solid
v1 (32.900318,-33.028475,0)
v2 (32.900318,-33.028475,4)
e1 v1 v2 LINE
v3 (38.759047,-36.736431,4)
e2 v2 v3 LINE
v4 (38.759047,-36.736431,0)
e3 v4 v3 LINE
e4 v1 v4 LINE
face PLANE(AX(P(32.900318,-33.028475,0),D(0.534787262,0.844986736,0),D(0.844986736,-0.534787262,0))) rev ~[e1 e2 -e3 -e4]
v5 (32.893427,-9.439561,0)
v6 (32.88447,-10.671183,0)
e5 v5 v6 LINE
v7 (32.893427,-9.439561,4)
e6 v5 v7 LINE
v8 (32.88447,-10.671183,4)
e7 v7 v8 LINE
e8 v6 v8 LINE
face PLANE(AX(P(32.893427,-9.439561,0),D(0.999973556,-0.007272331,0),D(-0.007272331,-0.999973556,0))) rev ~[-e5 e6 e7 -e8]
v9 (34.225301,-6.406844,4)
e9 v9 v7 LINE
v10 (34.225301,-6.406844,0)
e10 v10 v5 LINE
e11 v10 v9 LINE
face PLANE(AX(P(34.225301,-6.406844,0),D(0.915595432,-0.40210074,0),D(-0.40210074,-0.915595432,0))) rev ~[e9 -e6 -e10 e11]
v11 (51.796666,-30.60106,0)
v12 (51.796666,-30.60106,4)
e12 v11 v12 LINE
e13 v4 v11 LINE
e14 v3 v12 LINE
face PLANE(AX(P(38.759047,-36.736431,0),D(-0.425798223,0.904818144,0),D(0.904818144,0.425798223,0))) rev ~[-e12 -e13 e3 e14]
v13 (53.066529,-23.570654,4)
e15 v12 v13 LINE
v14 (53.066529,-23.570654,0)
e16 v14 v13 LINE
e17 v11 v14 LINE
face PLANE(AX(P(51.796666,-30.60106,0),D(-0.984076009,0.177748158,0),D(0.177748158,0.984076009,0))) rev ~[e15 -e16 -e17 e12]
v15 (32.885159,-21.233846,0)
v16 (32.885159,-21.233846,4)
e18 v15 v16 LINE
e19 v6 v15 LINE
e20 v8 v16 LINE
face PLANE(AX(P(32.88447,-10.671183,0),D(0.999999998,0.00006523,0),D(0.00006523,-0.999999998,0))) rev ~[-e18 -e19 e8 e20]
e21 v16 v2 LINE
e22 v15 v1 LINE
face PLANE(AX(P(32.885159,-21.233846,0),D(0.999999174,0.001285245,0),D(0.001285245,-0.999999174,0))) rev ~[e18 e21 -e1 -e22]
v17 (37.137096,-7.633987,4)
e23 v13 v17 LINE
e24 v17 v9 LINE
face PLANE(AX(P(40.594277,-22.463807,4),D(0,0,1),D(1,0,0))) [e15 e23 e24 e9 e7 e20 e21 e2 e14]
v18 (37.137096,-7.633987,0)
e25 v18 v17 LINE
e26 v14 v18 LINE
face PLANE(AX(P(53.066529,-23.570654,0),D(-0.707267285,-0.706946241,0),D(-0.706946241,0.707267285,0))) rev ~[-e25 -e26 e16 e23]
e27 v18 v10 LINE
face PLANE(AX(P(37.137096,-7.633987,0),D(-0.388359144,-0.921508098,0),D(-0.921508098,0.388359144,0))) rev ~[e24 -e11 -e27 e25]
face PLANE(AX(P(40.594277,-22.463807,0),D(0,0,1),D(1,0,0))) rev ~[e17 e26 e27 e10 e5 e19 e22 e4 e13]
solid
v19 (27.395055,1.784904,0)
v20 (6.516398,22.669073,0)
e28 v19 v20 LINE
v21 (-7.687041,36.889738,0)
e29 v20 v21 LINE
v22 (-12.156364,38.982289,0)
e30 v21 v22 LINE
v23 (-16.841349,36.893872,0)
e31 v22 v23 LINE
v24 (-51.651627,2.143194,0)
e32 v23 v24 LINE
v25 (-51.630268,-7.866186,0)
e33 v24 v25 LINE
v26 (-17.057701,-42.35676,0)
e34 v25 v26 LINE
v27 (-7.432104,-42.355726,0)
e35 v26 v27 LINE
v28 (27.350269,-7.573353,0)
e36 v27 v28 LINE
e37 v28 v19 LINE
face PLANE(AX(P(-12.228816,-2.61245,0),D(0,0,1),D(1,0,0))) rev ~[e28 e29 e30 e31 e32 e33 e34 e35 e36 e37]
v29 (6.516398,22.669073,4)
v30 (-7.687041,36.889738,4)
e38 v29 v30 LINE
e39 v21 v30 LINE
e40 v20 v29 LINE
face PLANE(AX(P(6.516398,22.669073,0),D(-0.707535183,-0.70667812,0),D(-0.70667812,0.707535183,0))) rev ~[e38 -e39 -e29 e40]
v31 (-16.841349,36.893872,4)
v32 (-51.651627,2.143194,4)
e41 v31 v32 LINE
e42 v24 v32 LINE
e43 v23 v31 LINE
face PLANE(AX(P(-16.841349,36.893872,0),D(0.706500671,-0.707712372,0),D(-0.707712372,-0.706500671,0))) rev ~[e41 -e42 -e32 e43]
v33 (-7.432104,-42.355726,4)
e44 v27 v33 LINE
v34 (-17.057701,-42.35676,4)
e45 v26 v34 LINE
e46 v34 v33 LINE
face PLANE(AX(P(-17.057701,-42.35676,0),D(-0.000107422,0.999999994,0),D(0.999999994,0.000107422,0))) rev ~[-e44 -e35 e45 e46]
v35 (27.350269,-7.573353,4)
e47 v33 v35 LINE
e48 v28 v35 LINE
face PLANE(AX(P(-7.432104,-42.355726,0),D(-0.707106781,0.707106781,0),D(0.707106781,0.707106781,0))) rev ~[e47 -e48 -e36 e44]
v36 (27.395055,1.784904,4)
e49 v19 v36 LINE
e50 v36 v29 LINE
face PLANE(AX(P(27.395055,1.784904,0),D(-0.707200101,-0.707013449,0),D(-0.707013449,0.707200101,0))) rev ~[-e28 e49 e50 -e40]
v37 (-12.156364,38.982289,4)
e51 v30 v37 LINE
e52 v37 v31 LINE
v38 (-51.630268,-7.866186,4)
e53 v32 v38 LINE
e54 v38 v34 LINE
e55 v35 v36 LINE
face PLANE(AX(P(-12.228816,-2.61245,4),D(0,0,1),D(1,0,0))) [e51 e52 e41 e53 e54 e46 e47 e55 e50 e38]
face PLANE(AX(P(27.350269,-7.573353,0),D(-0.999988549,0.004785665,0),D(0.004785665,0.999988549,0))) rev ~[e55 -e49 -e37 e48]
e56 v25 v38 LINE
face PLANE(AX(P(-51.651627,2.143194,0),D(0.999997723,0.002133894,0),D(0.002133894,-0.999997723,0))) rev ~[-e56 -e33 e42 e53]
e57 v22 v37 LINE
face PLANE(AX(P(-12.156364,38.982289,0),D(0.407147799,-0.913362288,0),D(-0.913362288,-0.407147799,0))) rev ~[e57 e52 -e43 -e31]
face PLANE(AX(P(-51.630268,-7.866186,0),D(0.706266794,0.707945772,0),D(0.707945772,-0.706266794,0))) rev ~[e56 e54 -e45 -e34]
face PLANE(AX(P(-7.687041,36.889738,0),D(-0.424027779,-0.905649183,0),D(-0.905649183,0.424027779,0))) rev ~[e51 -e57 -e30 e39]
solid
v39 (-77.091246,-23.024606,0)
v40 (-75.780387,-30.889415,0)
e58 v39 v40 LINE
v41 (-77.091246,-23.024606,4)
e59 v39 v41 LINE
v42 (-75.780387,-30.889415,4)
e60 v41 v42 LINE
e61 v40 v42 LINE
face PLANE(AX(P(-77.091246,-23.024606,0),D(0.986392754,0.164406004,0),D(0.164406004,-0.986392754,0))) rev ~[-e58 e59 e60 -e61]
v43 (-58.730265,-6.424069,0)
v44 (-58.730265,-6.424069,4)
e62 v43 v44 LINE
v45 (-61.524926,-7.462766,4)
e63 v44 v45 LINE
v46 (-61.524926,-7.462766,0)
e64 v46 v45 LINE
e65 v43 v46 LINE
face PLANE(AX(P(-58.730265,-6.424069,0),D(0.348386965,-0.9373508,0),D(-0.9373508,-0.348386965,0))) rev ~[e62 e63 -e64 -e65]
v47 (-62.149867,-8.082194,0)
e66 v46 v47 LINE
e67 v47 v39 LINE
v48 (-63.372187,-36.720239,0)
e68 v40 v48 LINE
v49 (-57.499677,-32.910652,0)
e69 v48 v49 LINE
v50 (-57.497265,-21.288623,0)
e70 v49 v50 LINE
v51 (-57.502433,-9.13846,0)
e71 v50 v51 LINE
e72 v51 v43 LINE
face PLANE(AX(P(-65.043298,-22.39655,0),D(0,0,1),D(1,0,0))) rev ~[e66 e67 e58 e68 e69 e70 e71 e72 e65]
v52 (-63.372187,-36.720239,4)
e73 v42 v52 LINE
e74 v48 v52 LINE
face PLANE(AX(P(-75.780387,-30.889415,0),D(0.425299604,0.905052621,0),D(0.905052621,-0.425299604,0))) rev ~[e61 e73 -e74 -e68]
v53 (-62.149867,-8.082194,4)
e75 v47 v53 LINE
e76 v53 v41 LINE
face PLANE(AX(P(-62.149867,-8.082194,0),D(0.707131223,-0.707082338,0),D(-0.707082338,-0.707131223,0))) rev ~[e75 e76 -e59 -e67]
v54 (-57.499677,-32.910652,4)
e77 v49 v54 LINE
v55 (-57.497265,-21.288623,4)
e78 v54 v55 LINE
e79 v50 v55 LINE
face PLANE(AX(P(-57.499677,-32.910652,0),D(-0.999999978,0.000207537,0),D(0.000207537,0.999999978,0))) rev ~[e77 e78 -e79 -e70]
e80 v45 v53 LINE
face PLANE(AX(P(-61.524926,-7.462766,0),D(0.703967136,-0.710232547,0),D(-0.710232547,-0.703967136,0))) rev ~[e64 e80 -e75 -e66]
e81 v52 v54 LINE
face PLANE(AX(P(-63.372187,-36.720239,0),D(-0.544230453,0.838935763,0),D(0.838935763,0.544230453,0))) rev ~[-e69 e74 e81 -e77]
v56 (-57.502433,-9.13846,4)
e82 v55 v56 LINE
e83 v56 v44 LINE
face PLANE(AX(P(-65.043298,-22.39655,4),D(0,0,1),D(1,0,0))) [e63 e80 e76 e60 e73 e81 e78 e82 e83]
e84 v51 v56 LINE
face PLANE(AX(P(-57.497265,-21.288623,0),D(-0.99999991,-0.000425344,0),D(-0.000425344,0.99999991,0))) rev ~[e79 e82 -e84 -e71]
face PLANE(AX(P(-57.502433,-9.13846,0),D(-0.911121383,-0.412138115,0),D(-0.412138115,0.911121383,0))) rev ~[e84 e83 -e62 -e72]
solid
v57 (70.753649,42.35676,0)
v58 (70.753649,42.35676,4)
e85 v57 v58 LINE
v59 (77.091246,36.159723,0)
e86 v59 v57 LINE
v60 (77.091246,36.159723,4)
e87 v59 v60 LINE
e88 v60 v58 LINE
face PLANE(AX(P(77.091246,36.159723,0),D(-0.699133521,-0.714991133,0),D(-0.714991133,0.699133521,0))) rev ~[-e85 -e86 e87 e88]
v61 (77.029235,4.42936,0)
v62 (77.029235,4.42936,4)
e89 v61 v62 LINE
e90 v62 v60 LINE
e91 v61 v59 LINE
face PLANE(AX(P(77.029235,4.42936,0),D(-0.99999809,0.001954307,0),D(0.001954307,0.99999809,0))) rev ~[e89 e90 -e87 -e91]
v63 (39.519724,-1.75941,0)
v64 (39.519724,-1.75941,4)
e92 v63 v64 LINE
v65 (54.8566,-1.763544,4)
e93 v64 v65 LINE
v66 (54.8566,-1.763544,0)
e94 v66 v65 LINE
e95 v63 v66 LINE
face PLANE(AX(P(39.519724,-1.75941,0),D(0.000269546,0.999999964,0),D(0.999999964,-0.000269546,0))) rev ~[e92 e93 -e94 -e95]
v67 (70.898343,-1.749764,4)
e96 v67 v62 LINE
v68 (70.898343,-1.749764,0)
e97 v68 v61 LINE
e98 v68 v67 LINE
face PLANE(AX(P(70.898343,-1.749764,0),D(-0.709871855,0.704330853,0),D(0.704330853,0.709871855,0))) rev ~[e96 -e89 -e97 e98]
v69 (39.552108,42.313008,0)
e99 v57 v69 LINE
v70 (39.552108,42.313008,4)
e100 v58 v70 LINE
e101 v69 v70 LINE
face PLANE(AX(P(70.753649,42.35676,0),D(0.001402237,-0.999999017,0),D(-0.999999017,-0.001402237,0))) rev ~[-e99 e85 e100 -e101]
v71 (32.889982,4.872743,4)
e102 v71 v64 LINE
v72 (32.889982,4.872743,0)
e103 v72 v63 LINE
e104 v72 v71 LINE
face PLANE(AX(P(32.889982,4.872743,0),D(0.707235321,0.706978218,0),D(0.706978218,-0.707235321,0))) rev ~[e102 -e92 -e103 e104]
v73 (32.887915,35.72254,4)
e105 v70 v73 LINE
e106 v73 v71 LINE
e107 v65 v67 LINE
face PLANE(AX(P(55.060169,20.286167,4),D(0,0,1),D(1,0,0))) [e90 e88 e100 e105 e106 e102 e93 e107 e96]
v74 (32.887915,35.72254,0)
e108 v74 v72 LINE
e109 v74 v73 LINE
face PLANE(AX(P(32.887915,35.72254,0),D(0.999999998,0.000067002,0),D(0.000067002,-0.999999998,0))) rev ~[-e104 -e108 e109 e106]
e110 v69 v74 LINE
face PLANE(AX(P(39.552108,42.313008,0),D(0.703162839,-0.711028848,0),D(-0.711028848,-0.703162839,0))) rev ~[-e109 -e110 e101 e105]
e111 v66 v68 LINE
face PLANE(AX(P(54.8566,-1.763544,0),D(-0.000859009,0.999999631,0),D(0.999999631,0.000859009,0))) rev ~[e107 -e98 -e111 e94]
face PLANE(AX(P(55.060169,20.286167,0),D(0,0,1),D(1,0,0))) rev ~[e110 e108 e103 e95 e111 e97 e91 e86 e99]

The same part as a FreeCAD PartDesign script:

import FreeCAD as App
import Part
import Sketcher
Q = App.Units.Quantity


def add_polygon(sketch, points):
    """Adds a closed chain of lines whose ends are joined by coincident constraints."""
    first, n = sketch.GeometryCount, len(points)
    for a, b in zip(points, points[1:] + points[:1]):
        sketch.addGeometry(Part.LineSegment(App.Vector(*a, 0), App.Vector(*b, 0)), False)
    for i in range(n):
        sketch.addConstraint(Sketcher.Constraint("Coincident", first + i, 2, first + (i + 1) % n, 1))

doc = App.newDocument("Part")
body = doc.addObject("PartDesign::Body", "Body")
body.AllowCompound = True

# Sketch on XY plane
sketch1 = doc.addObject("Sketcher::SketchObject", "Sketch")
body.addObject(sketch1)
sketch1.AttachmentSupport = (doc.XY_Plane, [""])
sketch1.MapMode = "FlatFace"
add_polygon(sketch1, [(-7.687041, 36.889738), (-12.156364, 38.982289), (-16.841349, 36.893872), (-51.651627, 2.143194), (-51.630268, -7.866186), (-17.057701, -42.35676), (-7.432104, -42.355726), (27.350269, -7.573353), (27.395055, 1.784904), (6.516398, 22.669073)])  # lines 0-9
add_polygon(sketch1, [(39.519724, -1.75941), (54.8566, -1.763544), (70.898343, -1.749764), (77.029235, 4.42936), (77.091246, 36.159723), (70.753649, 42.35676), (39.552108, 42.313008), (32.887915, 35.72254), (32.889982, 4.872743)])  # lines 10-18
add_polygon(sketch1, [(32.88447, -10.671183), (32.885159, -21.233846), (32.900318, -33.028475), (38.759047, -36.736431), (51.796666, -30.60106), (53.066529, -23.570654), (37.137096, -7.633987), (34.225301, -6.406844), (32.893427, -9.439561)])  # lines 19-27
add_polygon(sketch1, [(-57.499677, -32.910652), (-57.497265, -21.288623), (-57.502433, -9.13846), (-58.730265, -6.424069), (-61.524926, -7.462766), (-62.149867, -8.082194), (-77.091246, -23.024606), (-75.780387, -30.889415), (-63.372187, -36.720239)])  # lines 28-36
sketch1.addConstraint(Sketcher.Constraint("DistanceX", 30, 2, 28, 2, Q("1.233 mm")))
sketch1.addConstraint(Sketcher.Constraint("DistanceX", 4, 2, -1, 1, Q("17.057701 mm")))
sketch1.addConstraint(Sketcher.Constraint("DistanceX", -1, 1, 10, 2, Q("54.8566 mm")))
sketch1.addConstraint(Sketcher.Constraint("DistanceX", -1, 1, 25, 2, Q("34.225301 mm")))
sketch1.addConstraint(Sketcher.Constraint("DistanceY", 8, 2, 1, 2, Q("14.224799 mm")))
sketch1.addConstraint(Sketcher.Constraint("DistanceX", 8, 2, 10, 2, Q("48.340202 mm")))
sketch1.addConstraint(Sketcher.Constraint("DistanceY", 12, 2, 14, 2, Q("37.9274 mm")))
sketch1.addConstraint(Sketcher.Constraint("DistanceY", 19, 2, 10, 2, Q("19.470302 mm")))
sketch1.addConstraint(Sketcher.Constraint("DistanceX", 6, 2, 27, 2, Q("5.534201 mm")))
sketch1.addConstraint(Sketcher.Constraint("DistanceY", 4, 2, 29, 2, Q("33.2183 mm")))
sketch1.addConstraint(Sketcher.Constraint("DistanceX", 31, 2, 2, 2, Q("9.873299 mm")))
sketch1.addConstraint(Sketcher.Constraint("DistanceX", 32, 2, 30, 2, Q("3.419602 mm")))
sketch1.addConstraint(Sketcher.Constraint("DistanceX", 32, 2, 3, 2, Q("10.519599 mm")))
sketch1.addConstraint(Sketcher.Constraint("DistanceX", 34, 2, 35, 2, Q("12.4082 mm")))
sketch1.addConstraint(Sketcher.Constraint("Distance", 0, Q("4.934938 mm")))
sketch1.addConstraint(Sketcher.Constraint("Distance", 2, Q("49.187042 mm")))
sketch1.addConstraint(Sketcher.Constraint("Distance", 4, Q("48.83505 mm")))
sketch1.addConstraint(Sketcher.Constraint("Distance", 9, Q("20.09888 mm")))
sketch1.addConstraint(Sketcher.Constraint("Distance", 11, Q("16.041749 mm")))
sketch1.addConstraint(Sketcher.Constraint("Distance", 14, Q("8.863882 mm")))
sketch1.addConstraint(Sketcher.Constraint("Distance", 15, Q("31.201572 mm")))
sketch1.addConstraint(Sketcher.Constraint("Distance", 20, Q("11.794639 mm")))
sketch1.addConstraint(Sketcher.Constraint("Distance", 23, Q("7.14417 mm")))
sketch1.addConstraint(Sketcher.Constraint("Distance", 26, Q("3.312289 mm")))
sketch1.addConstraint(Sketcher.Constraint("Distance", 28, Q("11.622029 mm")))
sketch1.addConstraint(Sketcher.Constraint("Distance", 32, Q("0.87991 mm")))
sketch1.addConstraint(Sketcher.Constraint("Distance", 33, Q("21.131031 mm")))
sketch1.addConstraint(Sketcher.Constraint("Distance", 35, Q("13.709921 mm")))
sketch1.addConstraint(Sketcher.Constraint("Distance", 36, Q("6.999952 mm")))
sketch1.addConstraint(Sketcher.Constraint("DistanceY", -1, 1, 0, 2, Q("38.982289 mm")))
sketch1.addConstraint(Sketcher.Constraint("DistanceX", 1, 2, -1, 1, Q("16.841349 mm")))
sketch1.addConstraint(Sketcher.Constraint("DistanceY", 4, 2, -1, 1, Q("42.35676 mm")))
sketch1.addConstraint(Sketcher.Constraint("DistanceX", -1, 1, 6, 2, Q("27.350269 mm")))
sketch1.addConstraint(Sketcher.Constraint("DistanceX", 9, 2, -1, 1, Q("7.687041 mm")))
sketch1.addConstraint(Sketcher.Constraint("DistanceY", -1, 1, 12, 2, Q("4.42936 mm")))
sketch1.addConstraint(Sketcher.Constraint("DistanceX", -1, 1, 14, 2, Q("70.753649 mm")))
sketch1.addConstraint(Sketcher.Constraint("DistanceY", -1, 1, 15, 2, Q("42.313008 mm")))
sketch1.addConstraint(Sketcher.Constraint("DistanceY", -1, 1, 16, 2, Q("35.72254 mm")))
sketch1.addConstraint(Sketcher.Constraint("DistanceY", 18, 2, -1, 1, Q("1.75941 mm")))
sketch1.addConstraint(Sketcher.Constraint("DistanceX", -1, 1, 19, 2, Q("32.885159 mm")))
sketch1.addConstraint(Sketcher.Constraint("DistanceY", 21, 2, -1, 1, Q("36.736431 mm")))
sketch1.addConstraint(Sketcher.Constraint("DistanceY", 22, 2, -1, 1, Q("30.60106 mm")))
sketch1.addConstraint(Sketcher.Constraint("DistanceX", -1, 1, 23, 2, Q("53.066529 mm")))
sketch1.addConstraint(Sketcher.Constraint("DistanceY", 26, 2, -1, 1, Q("9.439561 mm")))
sketch1.addConstraint(Sketcher.Constraint("DistanceY", 30, 2, -1, 1, Q("6.424069 mm")))
sketch1.addConstraint(Sketcher.Constraint("DistanceY", 35, 2, -1, 1, Q("36.720239 mm")))
sketch1.addConstraint(Sketcher.Constraint("DistanceX", 2, 2, 3, 2, Q("0.021359 mm")))
sketch1.addConstraint(Sketcher.Constraint("DistanceY", 3, 2, 2, 2, Q("10.00938 mm")))
sketch1.addConstraint(Sketcher.Constraint("DistanceX", 3, 2, 1, 2, Q("34.788919 mm")))
sketch1.addConstraint(Sketcher.Constraint("DistanceY", 5, 2, 3, 2, Q("34.48954 mm")))
sketch1.addConstraint(Sketcher.Constraint("DistanceX", 0, 2, 5, 2, Q("4.72426 mm")))
sketch1.addConstraint(Sketcher.Constraint("DistanceX", 0, 2, 7, 2, Q("39.551419 mm")))
sketch1.addConstraint(Sketcher.Constraint("DistanceY", 5, 2, 7, 2, Q("44.14063 mm")))
sketch1.addConstraint(Sketcher.Constraint("DistanceY", 10, 2, 7, 2, Q("3.548448 mm")))
sketch1.addConstraint(Sketcher.Constraint("DistanceY", 6, 2, 10, 2, Q("5.809809 mm")))
sketch1.addConstraint(Sketcher.Constraint("DistanceY", 10, 2, 11, 2, Q("0.01378 mm")))
sketch1.addConstraint(Sketcher.Constraint("DistanceX", 7, 2, 12, 2, Q("49.63418 mm")))
sketch1.addConstraint(Sketcher.Constraint("DistanceX", 12, 2, 13, 2, Q("0.062011 mm")))
sketch1.addConstraint(Sketcher.Constraint("DistanceX", 7, 2, 16, 2, Q("5.49286 mm")))
sketch1.addConstraint(Sketcher.Constraint("DistanceY", 7, 2, 17, 2, Q("3.087839 mm")))
sketch1.addConstraint(Sketcher.Constraint("DistanceX", 17, 2, 18, 2, Q("6.629742 mm")))
sketch1.addConstraint(Sketcher.Constraint("DistanceX", 7, 2, 18, 2, Q("12.124669 mm")))
sketch1.addConstraint(Sketcher.Constraint("DistanceX", 19, 2, 20, 2, Q("0.015159 mm")))
sketch1.addConstraint(Sketcher.Constraint("DistanceX", 20, 2, 21, 2, Q("5.858729 mm")))
sketch1.addConstraint(Sketcher.Constraint("DistanceX", 21, 2, 22, 2, Q("13.037619 mm")))
sketch1.addConstraint(Sketcher.Constraint("DistanceY", 24, 2, 17, 2, Q("12.50673 mm")))
sketch1.addConstraint(Sketcher.Constraint("DistanceX", 7, 2, 24, 2, Q("9.742041 mm")))
sketch1.addConstraint(Sketcher.Constraint("DistanceY", 6, 2, 25, 2, Q("1.166509 mm")))
sketch1.addConstraint(Sketcher.Constraint("DistanceY", 27, 2, 26, 2, Q("1.231622 mm")))
sketch1.addConstraint(Sketcher.Constraint("DistanceX", 29, 2, 28, 2, Q("0.005168 mm")))
sketch1.addConstraint(Sketcher.Constraint("DistanceY", 3, 2, 31, 2, Q("0.40342 mm")))
sketch1.addConstraint(Sketcher.Constraint("DistanceY", 28, 2, 32, 2, Q("13.206429 mm")))
sketch1.addConstraint(Sketcher.Constraint("DistanceX", 33, 2, 28, 2, Q("19.593981 mm")))
sketch1.addConstraint(Sketcher.Constraint("DistanceX", 33, 2, 34, 2, Q("1.310859 mm")))
pad1 = doc.addObject("PartDesign::Pad", "Pad")
body.addObject(pad1)
pad1.Profile = sketch1
pad1.Length = 4

doc.recompute()
